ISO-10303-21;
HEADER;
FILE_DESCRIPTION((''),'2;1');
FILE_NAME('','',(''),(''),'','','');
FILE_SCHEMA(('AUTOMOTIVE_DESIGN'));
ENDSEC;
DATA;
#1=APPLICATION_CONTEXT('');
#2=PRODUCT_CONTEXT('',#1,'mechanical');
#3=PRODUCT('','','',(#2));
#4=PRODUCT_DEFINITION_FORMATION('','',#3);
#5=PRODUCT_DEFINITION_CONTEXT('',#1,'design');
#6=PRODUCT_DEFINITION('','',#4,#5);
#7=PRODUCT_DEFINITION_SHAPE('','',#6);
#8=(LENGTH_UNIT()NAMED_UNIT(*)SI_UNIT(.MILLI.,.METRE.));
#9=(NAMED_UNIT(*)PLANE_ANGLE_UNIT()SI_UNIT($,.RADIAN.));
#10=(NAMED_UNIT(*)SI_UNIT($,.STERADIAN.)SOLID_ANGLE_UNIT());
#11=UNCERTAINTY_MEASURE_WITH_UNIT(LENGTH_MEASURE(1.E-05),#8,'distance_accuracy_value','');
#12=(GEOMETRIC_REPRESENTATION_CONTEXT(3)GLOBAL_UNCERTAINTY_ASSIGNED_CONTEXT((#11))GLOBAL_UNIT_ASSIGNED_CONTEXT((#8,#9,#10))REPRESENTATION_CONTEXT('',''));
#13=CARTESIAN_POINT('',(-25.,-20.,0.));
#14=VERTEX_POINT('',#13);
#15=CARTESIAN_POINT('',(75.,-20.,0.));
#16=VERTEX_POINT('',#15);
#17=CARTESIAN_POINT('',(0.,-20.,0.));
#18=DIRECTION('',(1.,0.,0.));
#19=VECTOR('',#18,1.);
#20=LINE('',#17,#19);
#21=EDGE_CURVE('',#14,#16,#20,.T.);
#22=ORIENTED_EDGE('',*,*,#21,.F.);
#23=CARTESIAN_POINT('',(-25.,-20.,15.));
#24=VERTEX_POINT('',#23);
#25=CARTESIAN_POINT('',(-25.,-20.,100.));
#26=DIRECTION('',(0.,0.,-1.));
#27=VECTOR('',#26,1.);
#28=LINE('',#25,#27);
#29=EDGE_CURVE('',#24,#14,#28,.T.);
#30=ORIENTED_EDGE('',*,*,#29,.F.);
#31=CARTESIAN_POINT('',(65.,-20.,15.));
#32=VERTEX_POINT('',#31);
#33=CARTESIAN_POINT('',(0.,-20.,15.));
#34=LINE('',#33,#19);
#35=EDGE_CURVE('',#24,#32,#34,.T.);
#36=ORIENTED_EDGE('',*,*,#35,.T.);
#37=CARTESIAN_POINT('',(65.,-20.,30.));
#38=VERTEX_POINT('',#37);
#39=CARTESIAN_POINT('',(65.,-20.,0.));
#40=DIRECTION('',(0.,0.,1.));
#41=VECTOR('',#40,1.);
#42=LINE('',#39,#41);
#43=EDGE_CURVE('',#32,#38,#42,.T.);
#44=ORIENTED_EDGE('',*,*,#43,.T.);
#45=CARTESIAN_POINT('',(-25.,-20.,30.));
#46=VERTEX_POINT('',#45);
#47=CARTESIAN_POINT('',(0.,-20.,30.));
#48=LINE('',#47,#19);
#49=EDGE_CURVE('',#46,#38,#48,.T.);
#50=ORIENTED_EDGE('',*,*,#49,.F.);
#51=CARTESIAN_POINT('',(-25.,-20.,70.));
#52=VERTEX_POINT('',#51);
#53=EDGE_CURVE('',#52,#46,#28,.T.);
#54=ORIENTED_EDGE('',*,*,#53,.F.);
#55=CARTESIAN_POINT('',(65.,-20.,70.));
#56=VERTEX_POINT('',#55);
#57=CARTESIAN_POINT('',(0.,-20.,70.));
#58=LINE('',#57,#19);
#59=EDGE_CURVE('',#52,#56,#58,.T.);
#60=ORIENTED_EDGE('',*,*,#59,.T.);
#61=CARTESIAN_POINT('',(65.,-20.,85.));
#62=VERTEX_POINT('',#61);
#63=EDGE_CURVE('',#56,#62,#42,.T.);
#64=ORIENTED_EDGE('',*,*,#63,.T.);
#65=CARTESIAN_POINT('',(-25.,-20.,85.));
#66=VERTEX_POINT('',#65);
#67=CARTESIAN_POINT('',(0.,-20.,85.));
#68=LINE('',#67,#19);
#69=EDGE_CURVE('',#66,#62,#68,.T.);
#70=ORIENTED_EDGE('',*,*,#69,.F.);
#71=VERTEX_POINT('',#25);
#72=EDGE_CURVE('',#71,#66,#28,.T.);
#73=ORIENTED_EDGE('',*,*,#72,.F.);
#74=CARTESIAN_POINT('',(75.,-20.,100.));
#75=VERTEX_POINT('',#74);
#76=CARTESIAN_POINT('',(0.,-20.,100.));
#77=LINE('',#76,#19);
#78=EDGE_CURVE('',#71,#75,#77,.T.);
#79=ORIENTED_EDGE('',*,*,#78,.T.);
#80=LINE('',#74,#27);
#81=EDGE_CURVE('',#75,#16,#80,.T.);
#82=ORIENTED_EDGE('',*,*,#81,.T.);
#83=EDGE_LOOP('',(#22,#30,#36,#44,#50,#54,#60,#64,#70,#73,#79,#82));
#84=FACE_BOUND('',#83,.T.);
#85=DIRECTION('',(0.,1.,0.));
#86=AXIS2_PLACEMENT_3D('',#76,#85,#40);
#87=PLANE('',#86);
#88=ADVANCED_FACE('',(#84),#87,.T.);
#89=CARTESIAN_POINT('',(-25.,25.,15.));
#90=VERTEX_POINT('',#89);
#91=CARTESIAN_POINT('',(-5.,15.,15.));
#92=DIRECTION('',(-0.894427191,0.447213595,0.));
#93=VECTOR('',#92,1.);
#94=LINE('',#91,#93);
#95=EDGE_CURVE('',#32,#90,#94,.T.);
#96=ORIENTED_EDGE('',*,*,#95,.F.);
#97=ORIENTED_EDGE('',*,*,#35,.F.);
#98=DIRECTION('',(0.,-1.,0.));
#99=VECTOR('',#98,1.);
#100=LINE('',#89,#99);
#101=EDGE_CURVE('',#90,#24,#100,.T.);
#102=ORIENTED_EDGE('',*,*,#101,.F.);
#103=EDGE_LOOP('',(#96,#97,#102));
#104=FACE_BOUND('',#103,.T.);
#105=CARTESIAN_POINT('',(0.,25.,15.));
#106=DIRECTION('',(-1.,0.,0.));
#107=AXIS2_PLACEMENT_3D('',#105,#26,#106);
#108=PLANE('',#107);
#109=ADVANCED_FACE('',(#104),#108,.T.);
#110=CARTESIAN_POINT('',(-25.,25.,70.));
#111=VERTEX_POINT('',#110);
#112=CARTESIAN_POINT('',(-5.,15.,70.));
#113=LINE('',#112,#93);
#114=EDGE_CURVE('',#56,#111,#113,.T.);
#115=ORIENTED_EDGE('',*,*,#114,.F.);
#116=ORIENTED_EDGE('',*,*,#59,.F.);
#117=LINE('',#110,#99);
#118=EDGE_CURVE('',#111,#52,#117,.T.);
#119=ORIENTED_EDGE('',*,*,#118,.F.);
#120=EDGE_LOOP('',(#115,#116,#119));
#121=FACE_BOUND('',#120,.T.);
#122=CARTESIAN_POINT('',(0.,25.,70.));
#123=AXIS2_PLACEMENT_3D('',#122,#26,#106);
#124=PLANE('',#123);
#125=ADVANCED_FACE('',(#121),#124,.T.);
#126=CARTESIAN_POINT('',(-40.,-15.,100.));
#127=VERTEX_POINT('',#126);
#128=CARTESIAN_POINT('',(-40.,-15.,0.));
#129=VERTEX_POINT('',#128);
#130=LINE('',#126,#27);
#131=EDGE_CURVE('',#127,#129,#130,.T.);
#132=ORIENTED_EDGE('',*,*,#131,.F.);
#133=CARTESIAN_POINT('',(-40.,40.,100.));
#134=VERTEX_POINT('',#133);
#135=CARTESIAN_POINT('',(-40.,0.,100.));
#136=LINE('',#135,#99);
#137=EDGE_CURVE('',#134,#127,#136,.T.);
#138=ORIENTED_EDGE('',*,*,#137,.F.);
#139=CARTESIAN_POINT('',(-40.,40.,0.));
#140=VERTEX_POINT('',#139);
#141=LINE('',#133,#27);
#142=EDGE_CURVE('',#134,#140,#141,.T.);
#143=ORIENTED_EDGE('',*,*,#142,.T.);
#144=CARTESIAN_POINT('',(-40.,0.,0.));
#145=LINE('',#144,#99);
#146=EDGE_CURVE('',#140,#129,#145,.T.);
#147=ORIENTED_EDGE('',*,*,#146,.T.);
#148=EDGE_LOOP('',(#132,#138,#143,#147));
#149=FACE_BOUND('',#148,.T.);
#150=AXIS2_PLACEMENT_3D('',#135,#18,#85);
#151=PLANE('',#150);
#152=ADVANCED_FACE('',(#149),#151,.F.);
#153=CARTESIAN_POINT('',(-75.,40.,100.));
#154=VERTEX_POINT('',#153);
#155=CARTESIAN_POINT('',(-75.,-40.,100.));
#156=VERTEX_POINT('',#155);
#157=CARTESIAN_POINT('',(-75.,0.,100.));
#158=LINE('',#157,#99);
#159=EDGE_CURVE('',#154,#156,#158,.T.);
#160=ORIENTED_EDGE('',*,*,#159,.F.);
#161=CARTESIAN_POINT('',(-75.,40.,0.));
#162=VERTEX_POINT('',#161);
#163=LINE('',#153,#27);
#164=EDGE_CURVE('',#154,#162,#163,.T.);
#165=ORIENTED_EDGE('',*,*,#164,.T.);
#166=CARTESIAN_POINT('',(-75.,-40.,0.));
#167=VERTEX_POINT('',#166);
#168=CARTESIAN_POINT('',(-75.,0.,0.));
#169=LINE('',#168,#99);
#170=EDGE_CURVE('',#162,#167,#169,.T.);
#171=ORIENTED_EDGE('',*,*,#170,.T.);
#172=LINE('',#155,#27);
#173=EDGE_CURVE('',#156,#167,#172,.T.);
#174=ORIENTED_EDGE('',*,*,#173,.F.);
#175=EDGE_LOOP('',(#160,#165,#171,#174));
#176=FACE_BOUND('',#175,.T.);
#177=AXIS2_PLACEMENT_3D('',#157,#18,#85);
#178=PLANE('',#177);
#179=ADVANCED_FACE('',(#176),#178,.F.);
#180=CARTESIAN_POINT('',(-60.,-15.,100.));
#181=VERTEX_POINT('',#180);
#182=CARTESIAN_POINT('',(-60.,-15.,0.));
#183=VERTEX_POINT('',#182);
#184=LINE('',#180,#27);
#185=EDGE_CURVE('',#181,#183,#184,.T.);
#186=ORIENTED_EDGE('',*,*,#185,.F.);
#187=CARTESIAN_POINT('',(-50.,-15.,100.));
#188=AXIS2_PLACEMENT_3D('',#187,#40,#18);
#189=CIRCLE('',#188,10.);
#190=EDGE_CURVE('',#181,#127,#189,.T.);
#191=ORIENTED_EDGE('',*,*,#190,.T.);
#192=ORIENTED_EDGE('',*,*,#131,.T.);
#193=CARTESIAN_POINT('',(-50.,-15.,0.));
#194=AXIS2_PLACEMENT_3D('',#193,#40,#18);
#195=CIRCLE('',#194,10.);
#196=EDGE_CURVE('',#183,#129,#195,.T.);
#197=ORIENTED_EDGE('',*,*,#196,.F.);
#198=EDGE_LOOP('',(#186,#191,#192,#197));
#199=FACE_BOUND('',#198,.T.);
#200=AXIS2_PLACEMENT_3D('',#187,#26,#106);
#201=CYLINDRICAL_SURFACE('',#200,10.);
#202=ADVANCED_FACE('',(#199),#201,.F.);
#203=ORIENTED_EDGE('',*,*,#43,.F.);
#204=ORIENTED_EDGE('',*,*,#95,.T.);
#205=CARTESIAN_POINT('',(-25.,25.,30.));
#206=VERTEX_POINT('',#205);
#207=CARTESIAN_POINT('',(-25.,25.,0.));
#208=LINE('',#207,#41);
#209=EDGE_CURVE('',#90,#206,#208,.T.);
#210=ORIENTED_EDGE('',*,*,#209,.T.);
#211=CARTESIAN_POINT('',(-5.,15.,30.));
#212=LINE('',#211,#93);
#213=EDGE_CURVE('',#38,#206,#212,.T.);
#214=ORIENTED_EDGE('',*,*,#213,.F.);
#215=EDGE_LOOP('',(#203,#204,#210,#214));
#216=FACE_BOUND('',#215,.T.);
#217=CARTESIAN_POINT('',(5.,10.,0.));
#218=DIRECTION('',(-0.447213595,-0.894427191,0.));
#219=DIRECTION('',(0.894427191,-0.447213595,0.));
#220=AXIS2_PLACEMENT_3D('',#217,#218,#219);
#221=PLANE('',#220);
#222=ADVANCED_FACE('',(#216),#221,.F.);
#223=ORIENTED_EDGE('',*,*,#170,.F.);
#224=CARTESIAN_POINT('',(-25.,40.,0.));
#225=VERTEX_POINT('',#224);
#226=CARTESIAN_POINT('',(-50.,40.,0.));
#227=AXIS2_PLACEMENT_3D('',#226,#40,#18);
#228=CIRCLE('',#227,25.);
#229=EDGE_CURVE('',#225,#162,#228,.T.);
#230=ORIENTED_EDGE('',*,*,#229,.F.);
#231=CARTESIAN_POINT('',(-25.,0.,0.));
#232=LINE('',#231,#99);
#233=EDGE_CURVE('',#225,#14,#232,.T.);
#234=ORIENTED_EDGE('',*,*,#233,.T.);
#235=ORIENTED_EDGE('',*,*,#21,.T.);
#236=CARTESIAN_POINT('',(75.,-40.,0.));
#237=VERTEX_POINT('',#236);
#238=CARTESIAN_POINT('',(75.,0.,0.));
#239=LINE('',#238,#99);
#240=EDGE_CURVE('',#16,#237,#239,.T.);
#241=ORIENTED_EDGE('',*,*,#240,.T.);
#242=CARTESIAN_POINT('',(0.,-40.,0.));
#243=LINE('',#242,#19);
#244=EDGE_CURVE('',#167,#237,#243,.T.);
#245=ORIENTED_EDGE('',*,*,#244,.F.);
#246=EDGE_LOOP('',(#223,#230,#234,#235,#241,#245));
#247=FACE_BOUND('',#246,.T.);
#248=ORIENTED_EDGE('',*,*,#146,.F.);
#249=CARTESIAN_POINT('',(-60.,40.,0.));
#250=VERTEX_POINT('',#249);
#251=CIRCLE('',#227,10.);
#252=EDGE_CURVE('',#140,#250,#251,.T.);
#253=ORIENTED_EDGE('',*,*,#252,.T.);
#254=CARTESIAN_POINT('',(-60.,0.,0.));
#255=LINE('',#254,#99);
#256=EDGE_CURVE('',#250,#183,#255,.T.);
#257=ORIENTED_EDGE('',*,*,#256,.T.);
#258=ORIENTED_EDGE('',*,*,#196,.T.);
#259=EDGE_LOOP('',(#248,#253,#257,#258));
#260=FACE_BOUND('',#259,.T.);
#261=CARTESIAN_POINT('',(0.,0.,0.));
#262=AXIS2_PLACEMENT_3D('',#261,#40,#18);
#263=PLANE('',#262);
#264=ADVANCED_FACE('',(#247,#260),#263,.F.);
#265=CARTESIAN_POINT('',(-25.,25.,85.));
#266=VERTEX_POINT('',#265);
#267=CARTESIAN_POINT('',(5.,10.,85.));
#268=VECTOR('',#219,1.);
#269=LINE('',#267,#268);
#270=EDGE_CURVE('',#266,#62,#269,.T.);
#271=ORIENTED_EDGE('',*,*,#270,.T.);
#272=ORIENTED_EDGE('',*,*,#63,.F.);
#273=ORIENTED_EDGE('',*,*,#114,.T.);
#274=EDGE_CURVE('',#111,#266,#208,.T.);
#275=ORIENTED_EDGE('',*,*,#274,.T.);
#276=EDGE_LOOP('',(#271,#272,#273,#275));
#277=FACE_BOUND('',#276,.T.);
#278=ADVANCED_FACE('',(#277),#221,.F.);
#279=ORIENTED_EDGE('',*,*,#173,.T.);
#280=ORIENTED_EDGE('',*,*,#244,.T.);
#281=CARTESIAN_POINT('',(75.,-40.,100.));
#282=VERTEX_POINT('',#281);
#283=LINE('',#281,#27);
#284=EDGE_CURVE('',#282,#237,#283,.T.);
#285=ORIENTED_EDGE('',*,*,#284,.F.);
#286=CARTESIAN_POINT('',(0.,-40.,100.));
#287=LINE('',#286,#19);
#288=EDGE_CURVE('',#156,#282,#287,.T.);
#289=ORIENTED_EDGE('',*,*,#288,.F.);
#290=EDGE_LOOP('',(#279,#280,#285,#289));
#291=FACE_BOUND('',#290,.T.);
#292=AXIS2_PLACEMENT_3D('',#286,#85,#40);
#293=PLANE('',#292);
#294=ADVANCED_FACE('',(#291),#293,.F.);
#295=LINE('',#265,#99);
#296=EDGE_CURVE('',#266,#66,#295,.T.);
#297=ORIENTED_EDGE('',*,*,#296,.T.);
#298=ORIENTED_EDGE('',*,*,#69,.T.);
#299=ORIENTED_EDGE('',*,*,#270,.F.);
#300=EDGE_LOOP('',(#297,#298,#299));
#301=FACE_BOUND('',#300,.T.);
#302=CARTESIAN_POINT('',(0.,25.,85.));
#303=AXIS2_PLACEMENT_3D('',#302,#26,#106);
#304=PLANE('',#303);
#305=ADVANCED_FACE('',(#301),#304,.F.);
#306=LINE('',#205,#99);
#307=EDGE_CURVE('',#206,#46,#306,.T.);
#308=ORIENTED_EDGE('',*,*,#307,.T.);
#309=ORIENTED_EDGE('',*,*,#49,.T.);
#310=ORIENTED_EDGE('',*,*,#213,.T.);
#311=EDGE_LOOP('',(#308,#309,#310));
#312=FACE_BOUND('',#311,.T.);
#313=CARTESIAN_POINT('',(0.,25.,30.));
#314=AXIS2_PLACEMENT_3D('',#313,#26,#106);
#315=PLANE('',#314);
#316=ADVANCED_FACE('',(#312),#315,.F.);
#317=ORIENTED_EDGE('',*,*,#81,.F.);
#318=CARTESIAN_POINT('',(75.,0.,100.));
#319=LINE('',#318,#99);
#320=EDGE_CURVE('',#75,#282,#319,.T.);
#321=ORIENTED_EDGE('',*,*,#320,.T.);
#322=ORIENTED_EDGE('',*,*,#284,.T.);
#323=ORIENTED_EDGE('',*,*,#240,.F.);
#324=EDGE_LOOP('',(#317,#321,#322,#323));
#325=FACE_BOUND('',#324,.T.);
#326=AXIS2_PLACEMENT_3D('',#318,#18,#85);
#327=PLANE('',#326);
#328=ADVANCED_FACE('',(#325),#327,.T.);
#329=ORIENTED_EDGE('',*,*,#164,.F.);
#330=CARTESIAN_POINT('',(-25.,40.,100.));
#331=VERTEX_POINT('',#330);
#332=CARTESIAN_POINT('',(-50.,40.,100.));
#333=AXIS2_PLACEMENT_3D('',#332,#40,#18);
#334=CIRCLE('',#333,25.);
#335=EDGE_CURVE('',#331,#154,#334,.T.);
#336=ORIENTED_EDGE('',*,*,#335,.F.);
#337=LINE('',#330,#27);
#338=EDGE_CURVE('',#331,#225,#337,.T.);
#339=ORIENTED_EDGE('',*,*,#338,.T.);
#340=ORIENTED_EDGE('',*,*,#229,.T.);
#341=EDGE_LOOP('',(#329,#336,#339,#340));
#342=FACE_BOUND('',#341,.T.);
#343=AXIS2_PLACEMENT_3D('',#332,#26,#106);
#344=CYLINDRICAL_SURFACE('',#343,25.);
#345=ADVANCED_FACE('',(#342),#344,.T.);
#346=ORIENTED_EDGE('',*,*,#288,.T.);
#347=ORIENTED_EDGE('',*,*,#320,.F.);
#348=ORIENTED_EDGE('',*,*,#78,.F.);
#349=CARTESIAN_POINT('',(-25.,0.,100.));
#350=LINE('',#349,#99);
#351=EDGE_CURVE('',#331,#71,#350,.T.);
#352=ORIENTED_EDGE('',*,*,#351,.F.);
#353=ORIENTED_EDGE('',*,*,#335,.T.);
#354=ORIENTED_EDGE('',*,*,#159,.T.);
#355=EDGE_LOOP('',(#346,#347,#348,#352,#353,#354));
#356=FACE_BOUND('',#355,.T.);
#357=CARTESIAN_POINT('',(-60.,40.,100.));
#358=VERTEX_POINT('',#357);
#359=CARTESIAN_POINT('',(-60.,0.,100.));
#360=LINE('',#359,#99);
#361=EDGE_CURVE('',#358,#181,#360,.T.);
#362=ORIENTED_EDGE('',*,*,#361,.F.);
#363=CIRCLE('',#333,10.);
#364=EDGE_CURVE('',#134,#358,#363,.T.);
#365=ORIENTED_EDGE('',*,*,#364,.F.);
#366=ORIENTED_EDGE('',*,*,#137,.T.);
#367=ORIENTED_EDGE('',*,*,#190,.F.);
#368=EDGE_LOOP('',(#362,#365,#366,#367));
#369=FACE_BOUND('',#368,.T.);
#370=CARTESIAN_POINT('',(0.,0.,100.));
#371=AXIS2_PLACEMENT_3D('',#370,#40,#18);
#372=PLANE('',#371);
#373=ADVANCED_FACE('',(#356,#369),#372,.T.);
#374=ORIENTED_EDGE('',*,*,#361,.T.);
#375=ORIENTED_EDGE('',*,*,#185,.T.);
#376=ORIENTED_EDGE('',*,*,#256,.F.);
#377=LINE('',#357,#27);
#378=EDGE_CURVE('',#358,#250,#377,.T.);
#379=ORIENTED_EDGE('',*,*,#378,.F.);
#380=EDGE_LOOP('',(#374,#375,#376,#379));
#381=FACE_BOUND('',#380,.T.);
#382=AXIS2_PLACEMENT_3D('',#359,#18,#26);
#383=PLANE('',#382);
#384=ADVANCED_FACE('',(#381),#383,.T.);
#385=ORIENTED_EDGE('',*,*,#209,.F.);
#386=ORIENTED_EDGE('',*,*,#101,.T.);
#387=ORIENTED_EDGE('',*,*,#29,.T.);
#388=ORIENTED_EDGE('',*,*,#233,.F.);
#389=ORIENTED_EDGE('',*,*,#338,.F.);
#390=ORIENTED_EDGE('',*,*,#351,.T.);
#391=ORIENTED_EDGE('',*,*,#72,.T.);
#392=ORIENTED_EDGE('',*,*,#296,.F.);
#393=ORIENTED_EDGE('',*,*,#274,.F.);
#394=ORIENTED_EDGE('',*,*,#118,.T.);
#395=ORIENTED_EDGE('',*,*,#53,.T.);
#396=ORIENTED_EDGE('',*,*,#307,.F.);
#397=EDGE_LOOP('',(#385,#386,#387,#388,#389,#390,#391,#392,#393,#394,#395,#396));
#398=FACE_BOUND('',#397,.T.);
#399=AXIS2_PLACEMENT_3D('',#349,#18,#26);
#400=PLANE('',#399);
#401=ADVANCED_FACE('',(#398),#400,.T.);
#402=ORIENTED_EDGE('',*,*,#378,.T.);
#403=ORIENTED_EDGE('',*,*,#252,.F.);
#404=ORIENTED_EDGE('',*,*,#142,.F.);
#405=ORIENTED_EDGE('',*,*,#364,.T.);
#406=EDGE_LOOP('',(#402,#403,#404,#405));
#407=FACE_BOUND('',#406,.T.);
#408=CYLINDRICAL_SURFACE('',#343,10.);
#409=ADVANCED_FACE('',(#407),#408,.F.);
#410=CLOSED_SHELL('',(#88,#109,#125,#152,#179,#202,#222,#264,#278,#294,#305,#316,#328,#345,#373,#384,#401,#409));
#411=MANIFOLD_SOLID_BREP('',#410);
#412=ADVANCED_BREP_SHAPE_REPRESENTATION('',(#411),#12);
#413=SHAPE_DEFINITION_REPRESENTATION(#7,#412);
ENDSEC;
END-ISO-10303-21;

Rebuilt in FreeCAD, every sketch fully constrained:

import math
import FreeCAD as App
import Part
import Sketcher

V = App.Vector
Q = App.Units.Quantity


def add_polygon(sketch, points):
    """Adds a closed chain of lines whose ends are joined by coincident constraints."""
    first, n = sketch.GeometryCount, len(points)
    for a, b in zip(points, points[1:] + points[:1]):
        sketch.addGeometry(Part.LineSegment(App.Vector(*a, 0), App.Vector(*b, 0)), False)
    for i in range(n):
        sketch.addConstraint(Sketcher.Constraint("Coincident", first + i, 2, first + (i + 1) % n, 1))

doc = App.newDocument("Part")
params = doc.addObject("Spreadsheet::Sheet", "Params")
for row, (alias, value) in enumerate([
    ("sketch1_radius", "25 mm"),
    ("sketch1_radius2", "10 mm"),
    ("sketch1_width", "150 mm"),
    ("sketch1_height", "80 mm"),
    ("sketch1_height2", "20 mm"),
    ("pad1_length", "100 mm"),
    ("sketch2_width", "90 mm"),
    ("sketch2_height", "15 mm"),
    ("pad2_length", "45 mm"),
    ("sketch3_width", "90 mm"),
    ("sketch3_height", "45 mm"),
], start=1):
    params.set(f"A{row}", alias)
    params.set(f"B{row}", "=" + value)
    params.setAlias(f"B{row}", alias)

body = doc.addObject("PartDesign::Body", "Body")

# Sketch on XY plane
sketch1 = body.newObject("Sketcher::SketchObject", "Sketch")
sketch1.AttachmentSupport = (doc.getObject("XY_Plane"), [""])
sketch1.MapMode = "FlatFace"
sketch1.addGeometry(Part.ArcOfCircle(Part.Circle(V(-50, 40, 0), V(0, 0, 1), 25), math.radians(0), math.radians(180)), False)
sketch1.addGeometry(Part.LineSegment(V(-75, 40, 0), V(-75, -40, 0)), False)
sketch1.addGeometry(Part.LineSegment(V(-75, -40, 0), V(75, -40, 0)), False)
sketch1.addGeometry(Part.LineSegment(V(75, -40, 0), V(75, -20, 0)), False)
sketch1.addGeometry(Part.LineSegment(V(75, -20, 0), V(-25, -20, 0)), False)
sketch1.addGeometry(Part.LineSegment(V(-25, -20, 0), V(-25, 40, 0)), False)
sketch1.addGeometry(Part.LineSegment(V(-60, -15, 0), V(-60, 40, 0)), False)
sketch1.addGeometry(Part.ArcOfCircle(Part.Circle(V(-50, 40, 0), V(0, 0, 1), 10), math.radians(0), math.radians(180)), False)
sketch1.addGeometry(Part.LineSegment(V(-40, 40, 0), V(-40, -15, 0)), False)
sketch1.addGeometry(Part.ArcOfCircle(Part.Circle(V(-50, -15, 0), V(0, 0, 1), 10), math.radians(180), math.radians(360)), False)
sketch1.addConstraint(Sketcher.Constraint("Tangent", 0, 2, 1, 1))
sketch1.addConstraint(Sketcher.Constraint("Coincident", 1, 2, 2, 1))
sketch1.addConstraint(Sketcher.Constraint("Coincident", 2, 2, 3, 1))
sketch1.addConstraint(Sketcher.Constraint("Coincident", 3, 2, 4, 1))
sketch1.addConstraint(Sketcher.Constraint("Coincident", 4, 2, 5, 1))
sketch1.addConstraint(Sketcher.Constraint("Tangent", 5, 2, 0, 1))
sketch1.addConstraint(Sketcher.Constraint("Tangent", 6, 2, 7, 2))
sketch1.addConstraint(Sketcher.Constraint("Tangent", 7, 1, 8, 1))
sketch1.addConstraint(Sketcher.Constraint("Tangent", 8, 2, 9, 2))
sketch1.addConstraint(Sketcher.Constraint("Tangent", 9, 1, 6, 1))
sketch1.addConstraint(Sketcher.Constraint("Vertical", 1))
sketch1.addConstraint(Sketcher.Constraint("Horizontal", 2))
sketch1.addConstraint(Sketcher.Constraint("Vertical", 3))
sketch1.addConstraint(Sketcher.Constraint("Horizontal", 4))
sketch1.addConstraint(Sketcher.Constraint("Vertical", 5))
sketch1.addConstraint(Sketcher.Constraint("Vertical", 6))
sketch1.addConstraint(Sketcher.Constraint("Vertical", 8))
sketch1.addConstraint(Sketcher.Constraint("Coincident", 7, 3, 0, 3))
sketch1.addConstraint(Sketcher.Constraint("Symmetric", 0, 2, 2, 2, -1, 1))
sketch1.addConstraint(Sketcher.Constraint("Radius", 0, Q("25 mm")))
sketch1.addConstraint(Sketcher.Constraint("Radius", 7, Q("10 mm")))
sketch1.addConstraint(Sketcher.Constraint("DistanceX", 2, 1, 2, 2, Q("150 mm")))
sketch1.addConstraint(Sketcher.Constraint("DistanceY", 1, 2, 1, 1, Q("80 mm")))
sketch1.addConstraint(Sketcher.Constraint("DistanceY", 3, 1, 3, 2, Q("20 mm")))
sketch1.addConstraint(Sketcher.Constraint("DistanceY", 6, 1, 6, 2, Q("55 mm")))
sketch1.setExpression("Constraints[19]", "Params.sketch1_radius")
sketch1.setExpression("Constraints[20]", "Params.sketch1_radius2")
sketch1.setExpression("Constraints[21]", "Params.sketch1_width")
sketch1.setExpression("Constraints[22]", "Params.sketch1_height")
sketch1.setExpression("Constraints[23]", "Params.sketch1_height2")
pad1 = body.newObject("PartDesign::Pad", "Pad")
pad1.Profile = sketch1
pad1.setExpression("Length", "Params.pad1_length")

# Sketch on XZ plane
sketch2 = body.newObject("Sketcher::SketchObject", "Sketch001")
sketch2.AttachmentSupport = (doc.getObject("XZ_Plane"), [""])
sketch2.MapMode = "FlatFace"
sketch2.AttachmentOffset = App.Placement(V(0, 0, 20), App.Rotation())
add_polygon(sketch2, [(-25, 70), (-25, 85), (65, 85), (65, 70)])  # lines 0-3
add_polygon(sketch2, [(-25, 15), (-25, 30), (65, 30), (65, 15)])  # lines 4-7
sketch2.addConstraint(Sketcher.Constraint("Vertical", 0))
sketch2.addConstraint(Sketcher.Constraint("Horizontal", 1))
sketch2.addConstraint(Sketcher.Constraint("Vertical", 2))
sketch2.addConstraint(Sketcher.Constraint("Horizontal", 3))
sketch2.addConstraint(Sketcher.Constraint("Vertical", 4))
sketch2.addConstraint(Sketcher.Constraint("Horizontal", 5))
sketch2.addConstraint(Sketcher.Constraint("Vertical", 6))
sketch2.addConstraint(Sketcher.Constraint("Horizontal", 7))
sketch2.addConstraint(Sketcher.Constraint("Vertical", 3, 2, 4, 2))
sketch2.addConstraint(Sketcher.Constraint("Vertical", 2, 2, 5, 2))
sketch2.addConstraint(Sketcher.Constraint("Equal", 2, 4))
sketch2.addConstraint(Sketcher.Constraint("DistanceX", 1, 1, 1, 2, Q("90 mm")))
sketch2.addConstraint(Sketcher.Constraint("DistanceY", 0, 1, 0, 2, Q("15 mm")))
sketch2.addConstraint(Sketcher.Constraint("DistanceX", 0, 2, -1, 1, Q("25 mm")))
sketch2.addConstraint(Sketcher.Constraint("DistanceY", -1, 1, 0, 2, Q("85 mm")))
sketch2.addConstraint(Sketcher.Constraint("DistanceY", -1, 1, 4, 2, Q("30 mm")))
sketch2.setExpression("Constraints[19]", "Params.sketch2_width")
sketch2.setExpression("Constraints[20]", "Params.sketch2_height")
pad2 = body.newObject("PartDesign::Pad", "Pad001")
pad2.Profile = sketch2
pad2.setExpression("Length", "Params.pad2_length")
pad2.Reversed = True

# Sketch on XY plane
sketch3 = body.newObject("Sketcher::SketchObject", "Sketch002")
sketch3.AttachmentSupport = (doc.getObject("XY_Plane"), [""])
sketch3.MapMode = "FlatFace"
sketch3.AttachmentOffset = App.Placement(V(0, 0, 85), App.Rotation())
add_polygon(sketch3, [(-25, 25), (65, -20), (65, 25)])  # lines 0-2
sketch3.addConstraint(Sketcher.Constraint("Vertical", 1))
sketch3.addConstraint(Sketcher.Constraint("Horizontal", 2))
sketch3.addConstraint(Sketcher.Constraint("DistanceX", 2, 2, 2, 1, Q("90 mm")))
sketch3.addConstraint(Sketcher.Constraint("DistanceY", 1, 1, 1, 2, Q("45 mm")))
sketch3.addConstraint(Sketcher.Constraint("DistanceX", -1, 1, 0, 2, Q("65 mm")))
sketch3.addConstraint(Sketcher.Constraint("DistanceY", 0, 2, -1, 1, Q("20 mm")))
sketch3.setExpression("Constraints[5]", "Params.sketch3_width")
sketch3.setExpression("Constraints[6]", "Params.sketch3_height")
pocket1 = body.newObject("PartDesign::Pocket", "Pocket")
pocket1.Profile = sketch3
pocket1.Type = "ThroughAll"

doc.recompute()
